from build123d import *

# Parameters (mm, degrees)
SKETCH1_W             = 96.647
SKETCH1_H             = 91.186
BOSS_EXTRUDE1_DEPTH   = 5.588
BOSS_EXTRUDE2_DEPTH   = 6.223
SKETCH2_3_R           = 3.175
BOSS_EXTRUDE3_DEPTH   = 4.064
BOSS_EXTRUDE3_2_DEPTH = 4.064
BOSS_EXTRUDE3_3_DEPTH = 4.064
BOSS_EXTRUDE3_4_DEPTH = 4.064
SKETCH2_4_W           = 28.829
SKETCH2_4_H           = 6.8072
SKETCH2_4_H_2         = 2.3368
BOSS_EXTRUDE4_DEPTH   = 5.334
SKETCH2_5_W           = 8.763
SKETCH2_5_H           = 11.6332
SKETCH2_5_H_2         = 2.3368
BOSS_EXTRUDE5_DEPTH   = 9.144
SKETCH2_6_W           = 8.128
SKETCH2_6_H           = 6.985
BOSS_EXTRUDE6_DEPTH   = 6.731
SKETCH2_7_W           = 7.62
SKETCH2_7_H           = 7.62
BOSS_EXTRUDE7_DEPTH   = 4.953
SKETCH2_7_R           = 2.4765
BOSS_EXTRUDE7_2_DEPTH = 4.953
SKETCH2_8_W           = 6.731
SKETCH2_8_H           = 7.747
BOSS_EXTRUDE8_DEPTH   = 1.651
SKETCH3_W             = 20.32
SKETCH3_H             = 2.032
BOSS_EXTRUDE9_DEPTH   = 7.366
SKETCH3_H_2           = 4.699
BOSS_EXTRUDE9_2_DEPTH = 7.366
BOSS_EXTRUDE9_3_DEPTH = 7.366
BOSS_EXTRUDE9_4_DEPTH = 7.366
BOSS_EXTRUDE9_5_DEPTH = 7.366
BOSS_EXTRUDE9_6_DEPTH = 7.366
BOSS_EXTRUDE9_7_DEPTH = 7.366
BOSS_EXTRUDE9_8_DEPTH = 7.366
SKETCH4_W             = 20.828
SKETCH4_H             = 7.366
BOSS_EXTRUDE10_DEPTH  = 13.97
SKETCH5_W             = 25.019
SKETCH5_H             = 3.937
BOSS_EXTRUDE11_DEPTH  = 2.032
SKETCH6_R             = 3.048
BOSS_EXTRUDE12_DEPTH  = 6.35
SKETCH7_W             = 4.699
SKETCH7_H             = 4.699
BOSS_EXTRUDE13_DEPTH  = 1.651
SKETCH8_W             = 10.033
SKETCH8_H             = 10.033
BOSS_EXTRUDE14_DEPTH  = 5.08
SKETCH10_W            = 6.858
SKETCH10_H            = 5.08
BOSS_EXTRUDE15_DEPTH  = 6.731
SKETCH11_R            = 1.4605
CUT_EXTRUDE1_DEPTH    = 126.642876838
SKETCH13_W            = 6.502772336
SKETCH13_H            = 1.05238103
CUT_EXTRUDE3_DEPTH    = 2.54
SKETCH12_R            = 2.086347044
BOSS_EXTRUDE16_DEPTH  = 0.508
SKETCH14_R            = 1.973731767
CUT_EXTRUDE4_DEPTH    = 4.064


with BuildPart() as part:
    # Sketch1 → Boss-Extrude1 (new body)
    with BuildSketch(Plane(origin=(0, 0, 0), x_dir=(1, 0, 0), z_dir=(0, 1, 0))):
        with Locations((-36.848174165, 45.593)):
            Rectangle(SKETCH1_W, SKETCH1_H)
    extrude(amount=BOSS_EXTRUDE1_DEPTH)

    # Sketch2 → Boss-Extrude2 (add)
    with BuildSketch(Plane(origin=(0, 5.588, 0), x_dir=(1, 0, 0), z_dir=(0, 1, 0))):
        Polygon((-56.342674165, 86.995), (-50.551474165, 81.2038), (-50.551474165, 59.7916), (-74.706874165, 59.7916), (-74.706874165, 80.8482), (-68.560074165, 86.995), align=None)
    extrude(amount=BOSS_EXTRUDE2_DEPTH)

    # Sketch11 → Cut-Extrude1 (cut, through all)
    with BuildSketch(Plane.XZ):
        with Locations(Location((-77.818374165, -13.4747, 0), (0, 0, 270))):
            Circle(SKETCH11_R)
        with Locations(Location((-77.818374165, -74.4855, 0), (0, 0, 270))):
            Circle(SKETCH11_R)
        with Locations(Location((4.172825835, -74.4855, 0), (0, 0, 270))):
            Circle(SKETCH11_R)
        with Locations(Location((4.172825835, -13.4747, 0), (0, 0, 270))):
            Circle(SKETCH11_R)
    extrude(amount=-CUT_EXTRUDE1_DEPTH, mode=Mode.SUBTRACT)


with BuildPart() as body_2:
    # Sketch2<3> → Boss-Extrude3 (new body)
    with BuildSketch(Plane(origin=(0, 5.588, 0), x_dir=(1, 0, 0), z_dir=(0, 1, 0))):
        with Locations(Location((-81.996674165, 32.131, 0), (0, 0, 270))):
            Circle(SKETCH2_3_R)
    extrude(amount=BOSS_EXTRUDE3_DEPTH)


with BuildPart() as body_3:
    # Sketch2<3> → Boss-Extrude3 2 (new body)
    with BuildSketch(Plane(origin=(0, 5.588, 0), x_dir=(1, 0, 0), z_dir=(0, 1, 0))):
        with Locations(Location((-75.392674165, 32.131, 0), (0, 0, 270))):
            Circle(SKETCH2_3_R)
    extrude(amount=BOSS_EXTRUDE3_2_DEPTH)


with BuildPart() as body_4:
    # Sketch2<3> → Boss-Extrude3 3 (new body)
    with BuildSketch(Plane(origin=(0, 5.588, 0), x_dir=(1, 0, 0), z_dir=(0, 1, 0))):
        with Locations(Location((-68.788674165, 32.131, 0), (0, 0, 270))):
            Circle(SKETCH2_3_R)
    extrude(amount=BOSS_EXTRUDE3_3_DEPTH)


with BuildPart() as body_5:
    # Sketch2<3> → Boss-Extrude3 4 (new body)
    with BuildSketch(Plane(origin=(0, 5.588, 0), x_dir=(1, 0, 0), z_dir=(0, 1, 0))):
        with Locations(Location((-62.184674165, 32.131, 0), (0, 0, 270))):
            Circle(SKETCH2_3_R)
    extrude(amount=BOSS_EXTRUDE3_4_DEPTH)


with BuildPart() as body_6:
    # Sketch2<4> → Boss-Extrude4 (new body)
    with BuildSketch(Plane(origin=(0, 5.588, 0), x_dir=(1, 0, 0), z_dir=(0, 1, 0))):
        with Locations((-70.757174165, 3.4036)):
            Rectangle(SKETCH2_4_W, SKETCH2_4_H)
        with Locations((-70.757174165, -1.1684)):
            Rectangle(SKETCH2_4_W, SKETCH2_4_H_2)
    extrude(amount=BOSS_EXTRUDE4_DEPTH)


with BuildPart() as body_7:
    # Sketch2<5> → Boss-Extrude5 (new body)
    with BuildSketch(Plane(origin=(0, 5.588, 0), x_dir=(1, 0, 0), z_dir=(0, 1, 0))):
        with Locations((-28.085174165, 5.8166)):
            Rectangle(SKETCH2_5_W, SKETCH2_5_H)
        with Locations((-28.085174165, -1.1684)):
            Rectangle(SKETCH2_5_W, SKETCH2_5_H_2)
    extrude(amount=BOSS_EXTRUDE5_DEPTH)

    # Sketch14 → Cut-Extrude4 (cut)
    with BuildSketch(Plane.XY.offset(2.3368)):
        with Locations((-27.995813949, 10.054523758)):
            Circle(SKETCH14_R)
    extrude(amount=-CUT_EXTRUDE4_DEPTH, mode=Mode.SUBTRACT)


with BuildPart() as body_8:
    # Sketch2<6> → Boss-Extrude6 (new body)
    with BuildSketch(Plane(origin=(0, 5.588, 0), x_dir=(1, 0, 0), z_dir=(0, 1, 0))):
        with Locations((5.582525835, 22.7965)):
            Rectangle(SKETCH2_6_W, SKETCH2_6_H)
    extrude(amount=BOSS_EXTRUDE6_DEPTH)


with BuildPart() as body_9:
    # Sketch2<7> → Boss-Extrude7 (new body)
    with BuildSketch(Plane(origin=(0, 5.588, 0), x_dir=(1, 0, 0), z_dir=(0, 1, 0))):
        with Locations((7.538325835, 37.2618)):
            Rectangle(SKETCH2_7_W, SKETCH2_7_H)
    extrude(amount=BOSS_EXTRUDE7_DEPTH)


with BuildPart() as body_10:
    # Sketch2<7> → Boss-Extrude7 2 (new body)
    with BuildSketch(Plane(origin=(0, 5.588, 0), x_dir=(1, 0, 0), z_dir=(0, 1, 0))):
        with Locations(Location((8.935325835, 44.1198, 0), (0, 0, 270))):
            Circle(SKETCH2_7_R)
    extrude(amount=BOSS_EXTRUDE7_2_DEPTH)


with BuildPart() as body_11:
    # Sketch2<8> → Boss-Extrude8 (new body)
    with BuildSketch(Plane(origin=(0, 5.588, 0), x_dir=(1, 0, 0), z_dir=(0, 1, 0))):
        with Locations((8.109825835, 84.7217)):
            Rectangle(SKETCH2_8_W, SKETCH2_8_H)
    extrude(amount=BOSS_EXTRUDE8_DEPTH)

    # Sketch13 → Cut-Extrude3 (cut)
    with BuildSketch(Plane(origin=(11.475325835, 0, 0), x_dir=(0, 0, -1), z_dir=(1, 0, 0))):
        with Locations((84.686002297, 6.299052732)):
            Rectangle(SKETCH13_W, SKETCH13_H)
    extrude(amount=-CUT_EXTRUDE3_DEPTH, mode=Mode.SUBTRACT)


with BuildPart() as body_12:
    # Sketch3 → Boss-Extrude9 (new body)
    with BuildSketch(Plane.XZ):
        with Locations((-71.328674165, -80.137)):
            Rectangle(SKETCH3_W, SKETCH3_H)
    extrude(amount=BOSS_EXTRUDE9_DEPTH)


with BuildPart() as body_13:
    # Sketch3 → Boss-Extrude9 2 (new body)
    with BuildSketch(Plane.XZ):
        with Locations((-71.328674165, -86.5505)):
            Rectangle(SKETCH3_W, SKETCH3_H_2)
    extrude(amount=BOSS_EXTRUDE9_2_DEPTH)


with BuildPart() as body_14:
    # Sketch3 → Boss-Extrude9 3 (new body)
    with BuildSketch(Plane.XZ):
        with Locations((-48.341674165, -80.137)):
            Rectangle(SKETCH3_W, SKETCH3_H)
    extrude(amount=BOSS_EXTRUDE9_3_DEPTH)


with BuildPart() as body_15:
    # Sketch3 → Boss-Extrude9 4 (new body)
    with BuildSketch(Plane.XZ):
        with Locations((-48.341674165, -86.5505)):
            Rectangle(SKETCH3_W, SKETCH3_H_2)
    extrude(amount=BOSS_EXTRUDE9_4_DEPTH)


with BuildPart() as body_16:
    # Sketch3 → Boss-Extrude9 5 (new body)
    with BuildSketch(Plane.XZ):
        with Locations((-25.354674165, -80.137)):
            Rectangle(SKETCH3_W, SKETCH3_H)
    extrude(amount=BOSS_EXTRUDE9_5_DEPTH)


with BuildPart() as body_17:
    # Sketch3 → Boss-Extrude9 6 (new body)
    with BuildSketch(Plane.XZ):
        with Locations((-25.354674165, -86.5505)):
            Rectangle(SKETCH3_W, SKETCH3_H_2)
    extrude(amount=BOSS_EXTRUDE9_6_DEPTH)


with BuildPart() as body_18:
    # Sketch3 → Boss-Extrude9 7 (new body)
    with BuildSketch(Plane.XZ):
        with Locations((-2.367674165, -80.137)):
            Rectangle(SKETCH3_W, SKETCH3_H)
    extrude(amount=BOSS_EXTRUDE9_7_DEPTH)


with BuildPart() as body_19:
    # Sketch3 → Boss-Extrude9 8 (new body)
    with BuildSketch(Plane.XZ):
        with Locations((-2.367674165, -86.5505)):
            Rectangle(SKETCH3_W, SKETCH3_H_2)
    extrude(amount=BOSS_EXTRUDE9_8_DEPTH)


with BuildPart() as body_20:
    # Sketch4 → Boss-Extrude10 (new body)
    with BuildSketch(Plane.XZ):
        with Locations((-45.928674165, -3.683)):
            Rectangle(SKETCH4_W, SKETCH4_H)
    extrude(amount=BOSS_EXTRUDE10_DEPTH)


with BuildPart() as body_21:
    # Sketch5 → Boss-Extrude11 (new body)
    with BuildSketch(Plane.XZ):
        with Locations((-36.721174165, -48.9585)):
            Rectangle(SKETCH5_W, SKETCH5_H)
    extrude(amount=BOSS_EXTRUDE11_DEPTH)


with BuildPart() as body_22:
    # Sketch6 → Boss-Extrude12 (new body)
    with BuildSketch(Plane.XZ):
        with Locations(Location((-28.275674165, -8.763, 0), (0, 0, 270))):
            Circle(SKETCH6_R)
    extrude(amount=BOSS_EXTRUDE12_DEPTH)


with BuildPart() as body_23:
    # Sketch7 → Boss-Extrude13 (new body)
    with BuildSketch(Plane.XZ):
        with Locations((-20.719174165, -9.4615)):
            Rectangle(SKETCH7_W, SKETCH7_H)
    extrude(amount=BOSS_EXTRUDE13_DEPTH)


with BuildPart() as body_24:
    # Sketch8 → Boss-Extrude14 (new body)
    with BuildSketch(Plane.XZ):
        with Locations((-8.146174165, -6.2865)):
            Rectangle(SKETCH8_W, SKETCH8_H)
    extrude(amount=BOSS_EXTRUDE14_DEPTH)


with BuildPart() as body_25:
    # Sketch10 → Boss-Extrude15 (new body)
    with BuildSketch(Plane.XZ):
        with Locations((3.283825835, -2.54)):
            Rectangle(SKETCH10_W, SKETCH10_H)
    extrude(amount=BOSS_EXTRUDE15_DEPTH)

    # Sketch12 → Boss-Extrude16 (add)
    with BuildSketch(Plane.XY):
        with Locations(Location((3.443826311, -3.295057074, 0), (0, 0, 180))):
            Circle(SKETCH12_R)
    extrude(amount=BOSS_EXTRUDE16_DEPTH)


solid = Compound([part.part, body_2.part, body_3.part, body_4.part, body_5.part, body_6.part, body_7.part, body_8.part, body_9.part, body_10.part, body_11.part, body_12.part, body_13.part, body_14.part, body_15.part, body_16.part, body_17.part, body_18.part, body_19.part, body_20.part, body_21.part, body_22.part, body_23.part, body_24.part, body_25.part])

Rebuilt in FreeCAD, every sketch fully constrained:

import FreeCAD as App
import Part
import Sketcher
Q = App.Units.Quantity


def add_polygon(sketch, points):
    """Adds a closed chain of lines whose ends are joined by coincident constraints."""
    first, n = sketch.GeometryCount, len(points)
    for a, b in zip(points, points[1:] + points[:1]):
        sketch.addGeometry(Part.LineSegment(App.Vector(*a, 0), App.Vector(*b, 0)), False)
    for i in range(n):
        sketch.addConstraint(Sketcher.Constraint("Coincident", first + i, 2, first + (i + 1) % n, 1))

doc = App.newDocument("Part")
body = doc.addObject("PartDesign::Body", "Body")

sketch1 = body.newObject("Sketcher::SketchObject", "Sketch")
sketch1.AttachmentSupport = (doc.getObject("XZ_Plane"), [""])
sketch1.MapMode = "FlatFace"
add_polygon(sketch1, [(-85, -91), (-85, 0), (11, 0), (11, -91)])
sketch1.addConstraint([
    Sketcher.Constraint("Vertical", 0),
    Sketcher.Constraint("Horizontal", 1),
    Sketcher.Constraint("Vertical", 2),
    Sketcher.Constraint("Horizontal", 3),
    Sketcher.Constraint("PointOnObject", 0, 2, -1),
    Sketcher.Constraint("DistanceY", 0, 1, 0, 2, Q("3.59 in")),
    Sketcher.Constraint("DistanceX", 1, 1, 1, 2, Q("3.805 in")),
    Sketcher.Constraint("DistanceX", 0, 2, -1, 1, 85.171674),
])
pad1 = body.newObject("PartDesign::Pad", "Pad")
pad1.Profile = sketch1
pad1.Length = Q("0.22 in")
pad1.Reversed = True

sketch2 = body.newObject("Sketcher::SketchObject", "Sketch001")
sketch2.AttachmentSupport = (doc.getObject("XZ_Plane"), [""])
sketch2.MapMode = "FlatFace"
sketch2.AttachmentOffset = App.Placement(App.Vector(0, 0, -0.22 * 25.4), App.Rotation())
add_polygon(sketch2, [(-51, -81), (-56, -87), (-69, -87), (-75, -81), (-75, -60), (-51, -60)])
sketch2.addConstraint([
    Sketcher.Constraint("Horizontal", 1),
    Sketcher.Constraint("Vertical", 3),
    Sketcher.Constraint("Horizontal", 4),
    Sketcher.Constraint("Vertical", 5),
    Sketcher.Constraint("Perpendicular", 0, 2),
    Sketcher.Constraint("Angle", 0, Q("-135 deg")),
    Sketcher.Constraint("DistanceX", 1, 2, 1, 1, Q("0.481 in")),
    Sketcher.Constraint("DistanceX", 4, 1, 4, 2, Q("0.951 in")),
    Sketcher.Constraint("DistanceY", 3, 1, 3, 2, Q("0.829 in")),
    Sketcher.Constraint("DistanceY", 5, 2, 5, 1, Q("0.843 in")),
    Sketcher.Constraint("DistanceY", 0, 2, -1, 1, Q("3.425 in")),
    Sketcher.Constraint("DistanceX", 0, 2, -1, 1, 56.342674),
])
pad2 = body.newObject("PartDesign::Pad", "Pad001")
pad2.Profile = sketch2
pad2.Length = Q("0.245 in")
pad2.Reversed = True

sketch3 = body.newObject("Sketcher::SketchObject", "Sketch002")
sketch3.AttachmentSupport = (doc.getObject("XZ_Plane"), [""])
sketch3.MapMode = "FlatFace"
sketch3.addGeometry([
    Part.Circle(App.Vector(-77.8, -13.5, 0), App.Vector(0, 0, 1), 1.5),
    Part.Circle(App.Vector(-77.8, -74.5, 0), App.Vector(0, 0, 1), 1.5),
    Part.Circle(App.Vector(4.2, -74.5, 0), App.Vector(0, 0, 1), 1.5),
    Part.Circle(App.Vector(4.2, -13.5, 0), App.Vector(0, 0, 1), 1.5),
], False)
sketch3.addConstraint([
    Sketcher.Constraint("Equal", 0, 1),
    Sketcher.Constraint("Equal", 1, 2),
    Sketcher.Constraint("Equal", 2, 3),
    Sketcher.Constraint("Horizontal", 1, 3, 2, 3),
    Sketcher.Constraint("Horizontal", 0, 3, 3, 3),
    Sketcher.Constraint("Vertical", 0, 3, 1, 3),
    Sketcher.Constraint("Vertical", 2, 3, 3, 3),
    Sketcher.Constraint("Diameter", 0, Q("0.115 in")),
    Sketcher.Constraint("DistanceY", 1, 3, 0, 3, Q("2.402 in")),
    Sketcher.Constraint("DistanceX", 1, 3, 2, 3, Q("3.228 in")),
    Sketcher.Constraint("DistanceY", 0, 3, -1, 1, Q("0.5305 in")),
    Sketcher.Constraint("DistanceX", 0, 3, -1, 1, 77.818374),
])
pocket1 = body.newObject("PartDesign::Pocket", "Pocket")
pocket1.Profile = sketch3
pocket1.Type = "ThroughAll"
body2 = doc.addObject("PartDesign::Body", "Body001")

sketch4 = body2.newObject("Sketcher::SketchObject", "Sketch003")
sketch4.AttachmentSupport = (doc.getObject("XZ_Plane001"), [""])
sketch4.MapMode = "FlatFace"
sketch4.AttachmentOffset = App.Placement(App.Vector(0, 0, -0.22 * 25.4), App.Rotation())
sketch4.addGeometry(Part.Circle(App.Vector(-82, -32.1, 0), App.Vector(0, 0, 1), 3.2), False)
sketch4.addConstraint([
    Sketcher.Constraint("Diameter", 0, Q("0.25 in")),
    Sketcher.Constraint("DistanceY", 0, 3, -1, 1, Q("1.265 in")),
    Sketcher.Constraint("DistanceX", 0, 3, -1, 1, 81.996674),
])
pad3 = body2.newObject("PartDesign::Pad", "Pad002")
pad3.Profile = sketch4
pad3.Length = Q("0.16 in")
pad3.Reversed = True
body3 = doc.addObject("PartDesign::Body", "Body002")

sketch5 = body3.newObject("Sketcher::SketchObject", "Sketch004")
sketch5.AttachmentSupport = (doc.getObject("XZ_Plane002"), [""])
sketch5.MapMode = "FlatFace"
sketch5.AttachmentOffset = App.Placement(App.Vector(0, 0, -0.22 * 25.4), App.Rotation())
sketch5.addGeometry(Part.Circle(App.Vector(-75.4, -32.1, 0), App.Vector(0, 0, 1), 3.2), False)
sketch5.addConstraint([
    Sketcher.Constraint("Diameter", 0, Q("0.25 in")),
    Sketcher.Constraint("DistanceY", 0, 3, -1, 1, Q("1.265 in")),
    Sketcher.Constraint("DistanceX", 0, 3, -1, 1, 75.392674),
])
pad4 = body3.newObject("PartDesign::Pad", "Pad003")
pad4.Profile = sketch5
pad4.Length = Q("0.16 in")
pad4.Reversed = True
body4 = doc.addObject("PartDesign::Body", "Body003")

sketch6 = body4.newObject("Sketcher::SketchObject", "Sketch005")
sketch6.AttachmentSupport = (doc.getObject("XZ_Plane003"), [""])
sketch6.MapMode = "FlatFace"
sketch6.AttachmentOffset = App.Placement(App.Vector(0, 0, -0.22 * 25.4), App.Rotation())
sketch6.addGeometry(Part.Circle(App.Vector(-68.8, -32.1, 0), App.Vector(0, 0, 1), 3.2), False)
sketch6.addConstraint([
    Sketcher.Constraint("Diameter", 0, Q("0.25 in")),
    Sketcher.Constraint("DistanceY", 0, 3, -1, 1, Q("1.265 in")),
    Sketcher.Constraint("DistanceX", 0, 3, -1, 1, 68.788674),
])
pad5 = body4.newObject("PartDesign::Pad", "Pad004")
pad5.Profile = sketch6
pad5.Length = Q("0.16 in")
pad5.Reversed = True
body5 = doc.addObject("PartDesign::Body", "Body004")

sketch7 = body5.newObject("Sketcher::SketchObject", "Sketch006")
sketch7.AttachmentSupport = (doc.getObject("XZ_Plane004"), [""])
sketch7.MapMode = "FlatFace"
sketch7.AttachmentOffset = App.Placement(App.Vector(0, 0, -0.22 * 25.4), App.Rotation())
sketch7.addGeometry(Part.Circle(App.Vector(-62.2, -32.1, 0), App.Vector(0, 0, 1), 3.2), False)
sketch7.addConstraint([
    Sketcher.Constraint("Diameter", 0, Q("0.25 in")),
    Sketcher.Constraint("DistanceY", 0, 3, -1, 1, Q("1.265 in")),
    Sketcher.Constraint("DistanceX", 0, 3, -1, 1, 62.184674),
])
pad6 = body5.newObject("PartDesign::Pad", "Pad005")
pad6.Profile = sketch7
pad6.Length = Q("0.16 in")
pad6.Reversed = True
body6 = doc.addObject("PartDesign::Body", "Body005")

sketch8 = body6.newObject("Sketcher::SketchObject", "Sketch007")
sketch8.AttachmentSupport = (doc.getObject("XZ_Plane005"), [""])
sketch8.MapMode = "FlatFace"
sketch8.AttachmentOffset = App.Placement(App.Vector(0, 0, -0.22 * 25.4), App.Rotation())
add_polygon(sketch8, [(-85, -7), (-85, 2), (-56, 2), (-56, -7)])
sketch8.addConstraint([
    Sketcher.Constraint("Vertical", 0),
    Sketcher.Constraint("Horizontal", 1),
    Sketcher.Constraint("Vertical", 2),
    Sketcher.Constraint("Horizontal", 3),
    Sketcher.Constraint("DistanceY", 0, 1, 0, 2, Q("0.36 in")),
    Sketcher.Constraint("DistanceX", 1, 1, 1, 2, Q("1.135 in")),
    Sketcher.Constraint("DistanceY", -1, 1, 0, 2, Q("0.092 in")),
    Sketcher.Constraint("DistanceX", 0, 2, -1, 1, 85.171674),
])
pad7 = body6.newObject("PartDesign::Pad", "Pad006")
pad7.Profile = sketch8
pad7.Length = Q("0.21 in")
pad7.Reversed = True
body7 = doc.addObject("PartDesign::Body", "Body006")

sketch9 = body7.newObject("Sketcher::SketchObject", "Sketch008")
sketch9.AttachmentSupport = (doc.getObject("XZ_Plane006"), [""])
sketch9.MapMode = "FlatFace"
sketch9.AttachmentOffset = App.Placement(App.Vector(0, 0, -0.22 * 25.4), App.Rotation())
add_polygon(sketch9, [(-32, -12), (-32, 2), (-24, 2), (-24, -12)])
sketch9.addConstraint([
    Sketcher.Constraint("Vertical", 0),
    Sketcher.Constraint("Horizontal", 1),
    Sketcher.Constraint("Vertical", 2),
    Sketcher.Constraint("Horizontal", 3),
    Sketcher.Constraint("DistanceY", 0, 1, 0, 2, Q("0.55 in")),
    Sketcher.Constraint("DistanceX", 1, 1, 1, 2, Q("0.345 in")),
    Sketcher.Constraint("DistanceY", -1, 1, 0, 2, Q("0.092 in")),
    Sketcher.Constraint("DistanceX", 0, 2, -1, 1, 32.466674),
])
pad8 = body7.newObject("PartDesign::Pad", "Pad007")
pad8.Profile = sketch9
pad8.Length = Q("0.36 in")
pad8.Reversed = True

sketch10 = body7.newObject("Sketcher::SketchObject", "Sketch009")
sketch10.AttachmentSupport = (doc.getObject("XY_Plane006"), [""])
sketch10.MapMode = "FlatFace"
sketch10.AttachmentOffset = App.Placement(App.Vector(0, 0, 0.092 * 25.4), App.Rotation())
sketch10.addGeometry(Part.Circle(App.Vector(-28, 10.1, 0), App.Vector(0, 0, 1), 2), False)
sketch10.addConstraint([
    Sketcher.Constraint("Diameter", 0, 3.947464),
    Sketcher.Constraint("DistanceX", 0, 3, -1, 1, 27.995814),
    Sketcher.Constraint("DistanceY", -1, 1, 0, 3, 10.054524),
])
pocket2 = body7.newObject("PartDesign::Pocket", "Pocket001")
pocket2.Profile = sketch10
pocket2.Length = Q("0.16 in")
body8 = doc.addObject("PartDesign::Body", "Body007")

sketch11 = body8.newObject("Sketcher::SketchObject", "Sketch010")
sketch11.AttachmentSupport = (doc.getObject("XZ_Plane007"), [""])
sketch11.MapMode = "FlatFace"
sketch11.AttachmentOffset = App.Placement(App.Vector(0, 0, -0.22 * 25.4), App.Rotation())
add_polygon(sketch11, [(2, -26), (2, -19), (10, -19), (10, -26)])
sketch11.addConstraint([
    Sketcher.Constraint("Vertical", 0),
    Sketcher.Constraint("Horizontal", 1),
    Sketcher.Constraint("Vertical", 2),
    Sketcher.Constraint("Horizontal", 3),
    Sketcher.Constraint("DistanceX", 1, 1, 1, 2, Q("0.32 in")),
    Sketcher.Constraint("DistanceY", 0, 1, 0, 2, Q("0.275 in")),
    Sketcher.Constraint("DistanceY", 0, 2, -1, 1, Q("0.76 in")),
    Sketcher.Constraint("DistanceX", -1, 1, 0, 2, 1.518526),
])
pad9 = body8.newObject("PartDesign::Pad", "Pad008")
pad9.Profile = sketch11
pad9.Length = Q("0.265 in")
pad9.Reversed = True
body9 = doc.addObject("PartDesign::Body", "Body008")

sketch12 = body9.newObject("Sketcher::SketchObject", "Sketch011")
sketch12.AttachmentSupport = (doc.getObject("XZ_Plane008"), [""])
sketch12.MapMode = "FlatFace"
sketch12.AttachmentOffset = App.Placement(App.Vector(0, 0, -0.22 * 25.4), App.Rotation())
add_polygon(sketch12, [(4, -41), (4, -33), (11, -33), (11, -41)])
sketch12.addConstraint([
    Sketcher.Constraint("Vertical", 0),
    Sketcher.Constraint("Horizontal", 1),
    Sketcher.Constraint("Vertical", 2),
    Sketcher.Constraint("Horizontal", 3),
    Sketcher.Constraint("Equal", 3, 0),
    Sketcher.Constraint("DistanceX", 1, 1, 1, 2, Q("0.3 in")),
    Sketcher.Constraint("DistanceY", 0, 2, -1, 1, Q("1.317 in")),
    Sketcher.Constraint("DistanceX", -1, 1, 0, 2, 3.728326),
])
pad10 = body9.newObject("PartDesign::Pad", "Pad009")
pad10.Profile = sketch12
pad10.Length = Q("0.195 in")
pad10.Reversed = True
body10 = doc.addObject("PartDesign::Body", "Body009")

sketch13 = body10.newObject("Sketcher::SketchObject", "Sketch012")
sketch13.AttachmentSupport = (doc.getObject("XZ_Plane009"), [""])
sketch13.MapMode = "FlatFace"
sketch13.AttachmentOffset = App.Placement(App.Vector(0, 0, -0.22 * 25.4), App.Rotation())
sketch13.addGeometry(Part.Circle(App.Vector(8.9, -44.1, 0), App.Vector(0, 0, 1), 2.5), False)
sketch13.addConstraint([
    Sketcher.Constraint("Diameter", 0, Q("0.195 in")),
    Sketcher.Constraint("DistanceY", 0, 3, -1, 1, Q("1.737 in")),
    Sketcher.Constraint("DistanceX", -1, 1, 0, 3, 8.935326),
])
pad11 = body10.newObject("PartDesign::Pad", "Pad010")
pad11.Profile = sketch13
pad11.Length = Q("0.195 in")
pad11.Reversed = True
body11 = doc.addObject("PartDesign::Body", "Body010")

sketch14 = body11.newObject("Sketcher::SketchObject", "Sketch013")
sketch14.AttachmentSupport = (doc.getObject("XZ_Plane010"), [""])
sketch14.MapMode = "FlatFace"
sketch14.AttachmentOffset = App.Placement(App.Vector(0, 0, -0.22 * 25.4), App.Rotation())
add_polygon(sketch14, [(5, -89), (5, -81), (11, -81), (11, -89)])
sketch14.addConstraint([
    Sketcher.Constraint("Vertical", 0),
    Sketcher.Constraint("Horizontal", 1),
    Sketcher.Constraint("Vertical", 2),
    Sketcher.Constraint("Horizontal", 3),
    Sketcher.Constraint("DistanceX", 1, 1, 1, 2, Q("0.265 in")),
    Sketcher.Constraint("DistanceY", 0, 1, 0, 2, Q("0.305 in")),
    Sketcher.Constraint("DistanceY", 0, 2, -1, 1, Q("3.183 in")),
    Sketcher.Constraint("DistanceX", -1, 1, 0, 2, 4.744326),
])
pad12 = body11.newObject("PartDesign::Pad", "Pad011")
pad12.Profile = sketch14
pad12.Length = Q("0.065 in")
pad12.Reversed = True

sketch15 = body11.newObject("Sketcher::SketchObject", "Sketch014")
sketch15.AttachmentSupport = (doc.getObject("YZ_Plane010"), [""])
sketch15.MapMode = "FlatFace"
sketch15.AttachmentOffset = App.Placement(App.Vector(0, 0, 11.475326), App.Rotation())
add_polygon(sketch15, [(6.8, -81.4), (5.8, -81.4), (5.8, -87.9), (6.8, -87.9)])
sketch15.addConstraint([
    Sketcher.Constraint("Horizontal", 0),
    Sketcher.Constraint("Vertical", 1),
    Sketcher.Constraint("Horizontal", 2),
    Sketcher.Constraint("Vertical", 3),
    Sketcher.Constraint("DistanceX", 0, 2, 0, 1, 1.052381),
    Sketcher.Constraint("DistanceY", 1, 2, 1, 1, 6.502772),
    Sketcher.Constraint("DistanceY", 1, 2, -1, 1, 87.937388),
    Sketcher.Constraint("DistanceX", -1, 1, 0, 2, 5.772862),
])
pocket3 = body11.newObject("PartDesign::Pocket", "Pocket002")
pocket3.Profile = sketch15
pocket3.Length = Q("0.1 in")
body12 = doc.addObject("PartDesign::Body", "Body011")

sketch16 = body12.newObject("Sketcher::SketchObject", "Sketch015")
sketch16.AttachmentSupport = (doc.getObject("XZ_Plane011"), [""])
sketch16.MapMode = "FlatFace"
add_polygon(sketch16, [(-81.5, -79.1), (-81.5, -81.2), (-61.2, -81.2), (-61.2, -79.1)])
sketch16.addConstraint([
    Sketcher.Constraint("Vertical", 0),
    Sketcher.Constraint("Horizontal", 1),
    Sketcher.Constraint("Vertical", 2),
    Sketcher.Constraint("Horizontal", 3),
    Sketcher.Constraint("DistanceX", 1, 1, 1, 2, Q("0.8 in")),
    Sketcher.Constraint("DistanceY", 0, 2, 0, 1, Q("0.08 in")),
    Sketcher.Constraint("DistanceY", 0, 2, -1, 1, Q("3.195 in")),
    Sketcher.Constraint("DistanceX", 0, 2, -1, 1, 81.488674),
])
pad13 = body12.newObject("PartDesign::Pad", "Pad012")
pad13.Profile = sketch16
pad13.Length = Q("0.29 in")
body13 = doc.addObject("PartDesign::Body", "Body012")

sketch17 = body13.newObject("Sketcher::SketchObject", "Sketch016")
sketch17.AttachmentSupport = (doc.getObject("XZ_Plane012"), [""])
sketch17.MapMode = "FlatFace"
add_polygon(sketch17, [(-81.5, -84.2), (-81.5, -88.9), (-61.2, -88.9), (-61.2, -84.2)])
sketch17.addConstraint([
    Sketcher.Constraint("Vertical", 0),
    Sketcher.Constraint("Horizontal", 1),
    Sketcher.Constraint("Vertical", 2),
    Sketcher.Constraint("Horizontal", 3),
    Sketcher.Constraint("DistanceX", 1, 1, 1, 2, Q("0.8 in")),
    Sketcher.Constraint("DistanceY", 0, 2, -1, 1, Q("3.5 in")),
    Sketcher.Constraint("DistanceY", 0, 2, 0, 1, Q("0.185 in")),
    Sketcher.Constraint("DistanceX", 0, 2, -1, 1, 81.488674),
])
pad14 = body13.newObject("PartDesign::Pad", "Pad013")
pad14.Profile = sketch17
pad14.Length = Q("0.29 in")
body14 = doc.addObject("PartDesign::Body", "Body013")

sketch18 = body14.newObject("Sketcher::SketchObject", "Sketch017")
sketch18.AttachmentSupport = (doc.getObject("XZ_Plane013"), [""])
sketch18.MapMode = "FlatFace"
add_polygon(sketch18, [(-58.5, -79.1), (-58.5, -81.2), (-38.2, -81.2), (-38.2, -79.1)])
sketch18.addConstraint([
    Sketcher.Constraint("Vertical", 0),
    Sketcher.Constraint("Horizontal", 1),
    Sketcher.Constraint("Vertical", 2),
    Sketcher.Constraint("Horizontal", 3),
    Sketcher.Constraint("DistanceX", 1, 1, 1, 2, Q("0.8 in")),
    Sketcher.Constraint("DistanceY", 0, 2, 0, 1, Q("0.08 in")),
    Sketcher.Constraint("DistanceY", 0, 2, -1, 1, Q("3.195 in")),
    Sketcher.Constraint("DistanceX", 0, 2, -1, 1, 58.501674),
])
pad15 = body14.newObject("PartDesign::Pad", "Pad014")
pad15.Profile = sketch18
pad15.Length = Q("0.29 in")
body15 = doc.addObject("PartDesign::Body", "Body014")

sketch19 = body15.newObject("Sketcher::SketchObject", "Sketch018")
sketch19.AttachmentSupport = (doc.getObject("XZ_Plane014"), [""])
sketch19.MapMode = "FlatFace"
add_polygon(sketch19, [(-58.5, -84.2), (-58.5, -88.9), (-38.2, -88.9), (-38.2, -84.2)])
sketch19.addConstraint([
    Sketcher.Constraint("Vertical", 0),
    Sketcher.Constraint("Horizontal", 1),
    Sketcher.Constraint("Vertical", 2),
    Sketcher.Constraint("Horizontal", 3),
    Sketcher.Constraint("DistanceX", 1, 1, 1, 2, Q("0.8 in")),
    Sketcher.Constraint("DistanceY", 0, 2, -1, 1, Q("3.5 in")),
    Sketcher.Constraint("DistanceY", 0, 2, 0, 1, Q("0.185 in")),
    Sketcher.Constraint("DistanceX", 0, 2, -1, 1, 58.501674),
])
pad16 = body15.newObject("PartDesign::Pad", "Pad015")
pad16.Profile = sketch19
pad16.Length = Q("0.29 in")
body16 = doc.addObject("PartDesign::Body", "Body015")

sketch20 = body16.newObject("Sketcher::SketchObject", "Sketch019")
sketch20.AttachmentSupport = (doc.getObject("XZ_Plane015"), [""])
sketch20.MapMode = "FlatFace"
add_polygon(sketch20, [(-35.5, -79.1), (-35.5, -81.2), (-15.2, -81.2), (-15.2, -79.1)])
sketch20.addConstraint([
    Sketcher.Constraint("Vertical", 0),
    Sketcher.Constraint("Horizontal", 1),
    Sketcher.Constraint("Vertical", 2),
    Sketcher.Constraint("Horizontal", 3),
    Sketcher.Constraint("DistanceX", 1, 1, 1, 2, Q("0.8 in")),
    Sketcher.Constraint("DistanceY", 0, 2, 0, 1, Q("0.08 in")),
    Sketcher.Constraint("DistanceY", 0, 2, -1, 1, Q("3.195 in")),
    Sketcher.Constraint("DistanceX", 0, 2, -1, 1, 35.514674),
])
pad17 = body16.newObject("PartDesign::Pad", "Pad016")
pad17.Profile = sketch20
pad17.Length = Q("0.29 in")
body17 = doc.addObject("PartDesign::Body", "Body016")

sketch21 = body17.newObject("Sketcher::SketchObject", "Sketch020")
sketch21.AttachmentSupport = (doc.getObject("XZ_Plane016"), [""])
sketch21.MapMode = "FlatFace"
add_polygon(sketch21, [(-35.5, -84.2), (-35.5, -88.9), (-15.2, -88.9), (-15.2, -84.2)])
sketch21.addConstraint([
    Sketcher.Constraint("Vertical", 0),
    Sketcher.Constraint("Horizontal", 1),
    Sketcher.Constraint("Vertical", 2),
    Sketcher.Constraint("Horizontal", 3),
    Sketcher.Constraint("DistanceX", 1, 1, 1, 2, Q("0.8 in")),
    Sketcher.Constraint("DistanceY", 0, 2, -1, 1, Q("3.5 in")),
    Sketcher.Constraint("DistanceY", 0, 2, 0, 1, Q("0.185 in")),
    Sketcher.Constraint("DistanceX", 0, 2, -1, 1, 35.514674),
])
pad18 = body17.newObject("PartDesign::Pad", "Pad017")
pad18.Profile = sketch21
pad18.Length = Q("0.29 in")
body18 = doc.addObject("PartDesign::Body", "Body017")

sketch22 = body18.newObject("Sketcher::SketchObject", "Sketch021")
sketch22.AttachmentSupport = (doc.getObject("XZ_Plane017"), [""])
sketch22.MapMode = "FlatFace"
add_polygon(sketch22, [(-12.5, -79.1), (-12.5, -81.2), (7.8, -81.2), (7.8, -79.1)])
sketch22.addConstraint([
    Sketcher.Constraint("Vertical", 0),
    Sketcher.Constraint("Horizontal", 1),
    Sketcher.Constraint("Vertical", 2),
    Sketcher.Constraint("Horizontal", 3),
    Sketcher.Constraint("DistanceX", 1, 1, 1, 2, Q("0.8 in")),
    Sketcher.Constraint("DistanceY", 0, 2, 0, 1, Q("0.08 in")),
    Sketcher.Constraint("DistanceY", 0, 2, -1, 1, Q("3.195 in")),
    Sketcher.Constraint("DistanceX", 0, 2, -1, 1, 12.527674),
])
pad19 = body18.newObject("PartDesign::Pad", "Pad018")
pad19.Profile = sketch22
pad19.Length = Q("0.29 in")
body19 = doc.addObject("PartDesign::Body", "Body018")

sketch23 = body19.newObject("Sketcher::SketchObject", "Sketch022")
sketch23.AttachmentSupport = (doc.getObject("XZ_Plane018"), [""])
sketch23.MapMode = "FlatFace"
add_polygon(sketch23, [(-12.5, -84.2), (-12.5, -88.9), (7.8, -88.9), (7.8, -84.2)])
sketch23.addConstraint([
    Sketcher.Constraint("Vertical", 0),
    Sketcher.Constraint("Horizontal", 1),
    Sketcher.Constraint("Vertical", 2),
    Sketcher.Constraint("Horizontal", 3),
    Sketcher.Constraint("DistanceX", 1, 1, 1, 2, Q("0.8 in")),
    Sketcher.Constraint("DistanceY", 0, 2, -1, 1, Q("3.5 in")),
    Sketcher.Constraint("DistanceY", 0, 2, 0, 1, Q("0.185 in")),
    Sketcher.Constraint("DistanceX", 0, 2, -1, 1, 12.527674),
])
pad20 = body19.newObject("PartDesign::Pad", "Pad019")
pad20.Profile = sketch23
pad20.Length = Q("0.29 in")
body20 = doc.addObject("PartDesign::Body", "Body019")

sketch24 = body20.newObject("Sketcher::SketchObject", "Sketch023")
sketch24.AttachmentSupport = (doc.getObject("XZ_Plane019"), [""])
sketch24.MapMode = "FlatFace"
add_polygon(sketch24, [(-56, 0), (-56, -7), (-36, -7), (-36, 0)])
sketch24.addConstraint([
    Sketcher.Constraint("Vertical", 0),
    Sketcher.Constraint("Horizontal", 1),
    Sketcher.Constraint("Vertical", 2),
    Sketcher.Constraint("Horizontal", 3),
    Sketcher.Constraint("PointOnObject", 2, 2, -1),
    Sketcher.Constraint("DistanceX", 1, 1, 1, 2, Q("0.82 in")),
    Sketcher.Constraint("DistanceY", 0, 2, 0, 1, Q("0.29 in")),
    Sketcher.Constraint("DistanceX", 0, 2, -1, 1, 56.342674),
])
pad21 = body20.newObject("PartDesign::Pad", "Pad020")
pad21.Profile = sketch24
pad21.Length = Q("0.55 in")
body21 = doc.addObject("PartDesign::Body", "Body020")

sketch25 = body21.newObject("Sketcher::SketchObject", "Sketch024")
sketch25.AttachmentSupport = (doc.getObject("XZ_Plane020"), [""])
sketch25.MapMode = "FlatFace"
add_polygon(sketch25, [(-49.2, -47), (-49.2, -50.9), (-24.2, -50.9), (-24.2, -47)])
sketch25.addConstraint([
    Sketcher.Constraint("Vertical", 0),
    Sketcher.Constraint("Horizontal", 1),
    Sketcher.Constraint("Vertical", 2),
    Sketcher.Constraint("Horizontal", 3),
    Sketcher.Constraint("DistanceX", 1, 1, 1, 2, Q("0.985 in")),
    Sketcher.Constraint("DistanceY", 0, 2, 0, 1, Q("0.155 in")),
    Sketcher.Constraint("DistanceY", 2, 2, -1, 1, Q("1.85 in")),
    Sketcher.Constraint("DistanceX", 0, 2, -1, 1, 49.230674),
])
pad22 = body21.newObject("PartDesign::Pad", "Pad021")
pad22.Profile = sketch25
pad22.Length = Q("0.08 in")
body22 = doc.addObject("PartDesign::Body", "Body021")

sketch26 = body22.newObject("Sketcher::SketchObject", "Sketch025")
sketch26.AttachmentSupport = (doc.getObject("XZ_Plane021"), [""])
sketch26.MapMode = "FlatFace"
sketch26.addGeometry(Part.Circle(App.Vector(-28.3, -8.8, 0), App.Vector(0, 0, 1), 3), False)
sketch26.addConstraint([
    Sketcher.Constraint("Diameter", 0, Q("0.24 in")),
    Sketcher.Constraint("DistanceY", 0, 3, -1, 1, Q("0.345 in")),
    Sketcher.Constraint("DistanceX", 0, 3, -1, 1, 28.275674),
])
pad23 = body22.newObject("PartDesign::Pad", "Pad022")
pad23.Profile = sketch26
pad23.Length = Q("0.25 in")
body23 = doc.addObject("PartDesign::Body", "Body022")

sketch27 = body23.newObject("Sketcher::SketchObject", "Sketch026")
sketch27.AttachmentSupport = (doc.getObject("XZ_Plane022"), [""])
sketch27.MapMode = "FlatFace"
add_polygon(sketch27, [(-23.1, -7.1), (-23.1, -11.8), (-18.4, -11.8), (-18.4, -7.1)])
sketch27.addConstraint([
    Sketcher.Constraint("Vertical", 0),
    Sketcher.Constraint("Horizontal", 1),
    Sketcher.Constraint("Vertical", 2),
    Sketcher.Constraint("Horizontal", 3),
    Sketcher.Constraint("Equal", 3, 0),
    Sketcher.Constraint("DistanceX", 1, 1, 1, 2, Q("0.185 in")),
    Sketcher.Constraint("DistanceY", 2, 2, -1, 1, Q("0.28 in")),
    Sketcher.Constraint("DistanceX", 0, 2, -1, 1, 23.068674),
])
pad24 = body23.newObject("PartDesign::Pad", "Pad023")
pad24.Profile = sketch27
pad24.Length = Q("0.065 in")
body24 = doc.addObject("PartDesign::Body", "Body023")

sketch28 = body24.newObject("Sketcher::SketchObject", "Sketch027")
sketch28.AttachmentSupport = (doc.getObject("XZ_Plane023"), [""])
sketch28.MapMode = "FlatFace"
add_polygon(sketch28, [(-13, -1), (-13, -11), (-3, -11), (-3, -1)])
sketch28.addConstraint([
    Sketcher.Constraint("Vertical", 0),
    Sketcher.Constraint("Horizontal", 1),
    Sketcher.Constraint("Vertical", 2),
    Sketcher.Constraint("Horizontal", 3),
    Sketcher.Constraint("Equal", 3, 0),
    Sketcher.Constraint("DistanceX", 1, 1, 1, 2, Q("0.395 in")),
    Sketcher.Constraint("DistanceY", 2, 2, -1, 1, Q("0.05 in")),
    Sketcher.Constraint("DistanceX", 0, 2, -1, 1, 13.162674),
])
pad25 = body24.newObject("PartDesign::Pad", "Pad024")
pad25.Profile = sketch28
pad25.Length = Q("0.2 in")
body25 = doc.addObject("PartDesign::Body", "Body024")

sketch29 = body25.newObject("Sketcher::SketchObject", "Sketch028")
sketch29.AttachmentSupport = (doc.getObject("XZ_Plane024"), [""])
sketch29.MapMode = "FlatFace"
add_polygon(sketch29, [(0, 0), (0, -5), (7, -5), (7, 0)])
sketch29.addConstraint([
    Sketcher.Constraint("Vertical", 0),
    Sketcher.Constraint("Horizontal", 1),
    Sketcher.Constraint("Vertical", 2),
    Sketcher.Constraint("Horizontal", 3),
    Sketcher.Constraint("PointOnObject", 2, 2, -1),
    Sketcher.Constraint("DistanceY", 0, 2, 0, 1, Q("0.2 in")),
    Sketcher.Constraint("DistanceX", 1, 1, 1, 2, Q("0.27 in")),
    Sketcher.Constraint("DistanceX", 0, 2, -1, 1, 0.145174),
])
pad26 = body25.newObject("PartDesign::Pad", "Pad025")
pad26.Profile = sketch29
pad26.Length = Q("0.265 in")

sketch30 = body25.newObject("Sketcher::SketchObject", "Sketch029")
sketch30.AttachmentSupport = (doc.getObject("XY_Plane024"), [""])
sketch30.MapMode = "FlatFace"
sketch30.addGeometry(Part.Circle(App.Vector(3.4, -3.3, 0), App.Vector(0, 0, 1), 2.1), False)
sketch30.addConstraint([
    Sketcher.Constraint("Diameter", 0, 4.172694),
    Sketcher.Constraint("DistanceX", -1, 1, 0, 3, 3.443826),
    Sketcher.Constraint("DistanceY", 0, 3, -1, 1, 3.295057),
])
pad27 = body25.newObject("PartDesign::Pad", "Pad026")
pad27.Profile = sketch30
pad27.Length = Q("0.02 in")

doc.recompute()
